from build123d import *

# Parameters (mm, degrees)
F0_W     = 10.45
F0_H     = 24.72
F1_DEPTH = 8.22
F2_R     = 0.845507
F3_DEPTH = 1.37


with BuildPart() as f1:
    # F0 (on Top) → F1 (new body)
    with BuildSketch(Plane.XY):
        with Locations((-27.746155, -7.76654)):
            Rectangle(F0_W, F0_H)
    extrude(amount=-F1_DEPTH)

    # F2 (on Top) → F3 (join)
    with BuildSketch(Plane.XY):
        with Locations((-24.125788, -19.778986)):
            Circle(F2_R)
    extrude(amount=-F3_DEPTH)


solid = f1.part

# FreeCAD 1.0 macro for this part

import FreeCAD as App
import Part
import Sketcher
Q = App.Units.Quantity

doc = App.newDocument("Part")
body = doc.addObject("PartDesign::Body", "Body")

# Sketch on XY plane
sketch1 = body.newObject("Sketcher::SketchObject", "Sketch")
sketch1.AttachmentSupport = (doc.getObject("XY_Plane"), [""])
sketch1.MapMode = "FlatFace"
sketch1.addGeometry(Part.LineSegment(App.Vector(-33, 5, 0), App.Vector(-33, -20, 0)), False)
sketch1.addGeometry(Part.LineSegment(App.Vector(-33, -20, 0), App.Vector(-23, -20, 0)), False)
sketch1.addGeometry(Part.LineSegment(App.Vector(-23, -20, 0), App.Vector(-23, 5, 0)), False)
sketch1.addGeometry(Part.LineSegment(App.Vector(-23, 5, 0), App.Vector(-33, 5, 0)), False)
sketch1.addConstraint(Sketcher.Constraint("Coincident", 0, 2, 1, 1))
sketch1.addConstraint(Sketcher.Constraint("Coincident", 1, 2, 2, 1))
sketch1.addConstraint(Sketcher.Constraint("Coincident", 2, 2, 3, 1))
sketch1.addConstraint(Sketcher.Constraint("Coincident", 3, 2, 0, 1))
sketch1.addConstraint(Sketcher.Constraint("Vertical", 0))
sketch1.addConstraint(Sketcher.Constraint("Horizontal", 1))
sketch1.addConstraint(Sketcher.Constraint("Vertical", 2))
sketch1.addConstraint(Sketcher.Constraint("Horizontal", 3))
sketch1.addConstraint(Sketcher.Constraint("DistanceX", 1, 1, 1, 2, Q("10.45 mm")))
sketch1.addConstraint(Sketcher.Constraint("DistanceY", 0, 2, 0, 1, Q("24.72 mm")))
sketch1.addConstraint(Sketcher.Constraint("DistanceY", 0, 2, -1, 1, Q("20.12654 mm")))
sketch1.addConstraint(Sketcher.Constraint("DistanceX", 0, 2, -1, 1, Q("32.971155 mm")))
pad1 = body.newObject("PartDesign::Pad", "Pad")
pad1.Profile = sketch1
pad1.Length = 8.22
pad1.Reversed = True

# Sketch on XY plane
sketch2 = body.newObject("Sketcher::SketchObject", "Sketch001")
sketch2.AttachmentSupport = (doc.getObject("XY_Plane"), [""])
sketch2.MapMode = "FlatFace"
sketch2.addGeometry(Part.Circle(App.Vector(-24.1, -19.8, 0), App.Vector(0, 0, 1), 0.8), False)
sketch2.addConstraint(Sketcher.Constraint("Diameter", 0, Q("1.691014 mm")))
sketch2.addConstraint(Sketcher.Constraint("DistanceX", 0, 3, -1, 1, Q("24.125788 mm")))
sketch2.addConstraint(Sketcher.Constraint("DistanceY", 0, 3, -1, 1, Q("19.778986 mm")))
pad2 = body.newObject("PartDesign::Pad", "Pad001")
pad2.Profile = sketch2
pad2.Length = 1.37
pad2.Reversed = True

doc.recompute()
